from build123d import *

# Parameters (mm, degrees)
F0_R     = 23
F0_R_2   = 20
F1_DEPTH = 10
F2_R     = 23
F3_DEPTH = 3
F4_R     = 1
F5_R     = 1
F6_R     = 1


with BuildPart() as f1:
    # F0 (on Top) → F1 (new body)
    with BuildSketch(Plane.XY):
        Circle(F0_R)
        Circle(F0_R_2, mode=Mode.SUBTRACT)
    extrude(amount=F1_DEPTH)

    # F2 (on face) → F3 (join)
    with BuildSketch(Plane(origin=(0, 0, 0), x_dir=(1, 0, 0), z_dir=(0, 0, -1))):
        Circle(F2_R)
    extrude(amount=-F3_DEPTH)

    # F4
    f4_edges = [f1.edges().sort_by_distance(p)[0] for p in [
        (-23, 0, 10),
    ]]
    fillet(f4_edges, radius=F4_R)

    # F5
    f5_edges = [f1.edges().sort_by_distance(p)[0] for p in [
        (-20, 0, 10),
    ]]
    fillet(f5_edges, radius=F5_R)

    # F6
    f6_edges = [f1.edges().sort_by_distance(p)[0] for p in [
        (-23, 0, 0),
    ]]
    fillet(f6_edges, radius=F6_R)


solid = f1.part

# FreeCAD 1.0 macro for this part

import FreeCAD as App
import Part
import Sketcher

V = App.Vector


def edges_at(feature, points):
    """Names of the edges that pass closest to the given points."""
    edges = feature.Shape.Edges
    near = lambda p: min(range(len(edges)), key=lambda i: edges[i].distToShape(Part.Vertex(*p))[0])
    return sorted({f"Edge{near(p) + 1}" for p in points})

doc = App.newDocument("Part")
body = doc.addObject("PartDesign::Body", "Body")

# Sketch on XY plane
sketch1 = body.newObject("Sketcher::SketchObject", "Sketch")
sketch1.AttachmentSupport = (doc.getObject("XY_Plane"), [""])
sketch1.MapMode = "FlatFace"
sketch1.addGeometry([
    Part.Circle(V(0, 0, 0), V(0, 0, 1), 23),
    Part.Circle(V(0, 0, 0), V(0, 0, 1), 20),
], False)
sketch1.addConstraint([
    Sketcher.Constraint("Coincident", 0, 3, -1, 1),
    Sketcher.Constraint("Coincident", 1, 3, -1, 1),
    Sketcher.Constraint("Diameter", 0, 46.0),
    Sketcher.Constraint("Diameter", 1, 40.0),
])
pad1 = body.newObject("PartDesign::Pad", "Pad")
pad1.Profile = sketch1
pad1.Length = 10

# Sketch on XY plane
sketch2 = body.newObject("Sketcher::SketchObject", "Sketch001")
sketch2.AttachmentSupport = (doc.getObject("XY_Plane"), [""])
sketch2.MapMode = "FlatFace"
sketch2.addGeometry(Part.Circle(V(0, 0, 0), V(0, 0, 1), 23), False)
sketch2.addConstraint([
    Sketcher.Constraint("Coincident", 0, 3, -1, 1),
    Sketcher.Constraint("Diameter", 0, 46.0),
])
pad2 = body.newObject("PartDesign::Pad", "Pad001")
pad2.Profile = sketch2
pad2.Length = 3
doc.recompute()

fillet = body.newObject("PartDesign::Fillet", "Fillet")
fillet.Base = (pad2, edges_at(pad2, [(-23, 0, 10)]))
fillet.Radius = 1
doc.recompute()

fillet2 = body.newObject("PartDesign::Fillet", "Fillet001")
fillet2.Base = (fillet, edges_at(fillet, [(-20, 0, 10)]))
fillet2.Radius = 1
doc.recompute()

fillet3 = body.newObject("PartDesign::Fillet", "Fillet002")
fillet3.Base = (fillet2, edges_at(fillet2, [(-23, 0, 0)]))
fillet3.Radius = 1

doc.recompute()
